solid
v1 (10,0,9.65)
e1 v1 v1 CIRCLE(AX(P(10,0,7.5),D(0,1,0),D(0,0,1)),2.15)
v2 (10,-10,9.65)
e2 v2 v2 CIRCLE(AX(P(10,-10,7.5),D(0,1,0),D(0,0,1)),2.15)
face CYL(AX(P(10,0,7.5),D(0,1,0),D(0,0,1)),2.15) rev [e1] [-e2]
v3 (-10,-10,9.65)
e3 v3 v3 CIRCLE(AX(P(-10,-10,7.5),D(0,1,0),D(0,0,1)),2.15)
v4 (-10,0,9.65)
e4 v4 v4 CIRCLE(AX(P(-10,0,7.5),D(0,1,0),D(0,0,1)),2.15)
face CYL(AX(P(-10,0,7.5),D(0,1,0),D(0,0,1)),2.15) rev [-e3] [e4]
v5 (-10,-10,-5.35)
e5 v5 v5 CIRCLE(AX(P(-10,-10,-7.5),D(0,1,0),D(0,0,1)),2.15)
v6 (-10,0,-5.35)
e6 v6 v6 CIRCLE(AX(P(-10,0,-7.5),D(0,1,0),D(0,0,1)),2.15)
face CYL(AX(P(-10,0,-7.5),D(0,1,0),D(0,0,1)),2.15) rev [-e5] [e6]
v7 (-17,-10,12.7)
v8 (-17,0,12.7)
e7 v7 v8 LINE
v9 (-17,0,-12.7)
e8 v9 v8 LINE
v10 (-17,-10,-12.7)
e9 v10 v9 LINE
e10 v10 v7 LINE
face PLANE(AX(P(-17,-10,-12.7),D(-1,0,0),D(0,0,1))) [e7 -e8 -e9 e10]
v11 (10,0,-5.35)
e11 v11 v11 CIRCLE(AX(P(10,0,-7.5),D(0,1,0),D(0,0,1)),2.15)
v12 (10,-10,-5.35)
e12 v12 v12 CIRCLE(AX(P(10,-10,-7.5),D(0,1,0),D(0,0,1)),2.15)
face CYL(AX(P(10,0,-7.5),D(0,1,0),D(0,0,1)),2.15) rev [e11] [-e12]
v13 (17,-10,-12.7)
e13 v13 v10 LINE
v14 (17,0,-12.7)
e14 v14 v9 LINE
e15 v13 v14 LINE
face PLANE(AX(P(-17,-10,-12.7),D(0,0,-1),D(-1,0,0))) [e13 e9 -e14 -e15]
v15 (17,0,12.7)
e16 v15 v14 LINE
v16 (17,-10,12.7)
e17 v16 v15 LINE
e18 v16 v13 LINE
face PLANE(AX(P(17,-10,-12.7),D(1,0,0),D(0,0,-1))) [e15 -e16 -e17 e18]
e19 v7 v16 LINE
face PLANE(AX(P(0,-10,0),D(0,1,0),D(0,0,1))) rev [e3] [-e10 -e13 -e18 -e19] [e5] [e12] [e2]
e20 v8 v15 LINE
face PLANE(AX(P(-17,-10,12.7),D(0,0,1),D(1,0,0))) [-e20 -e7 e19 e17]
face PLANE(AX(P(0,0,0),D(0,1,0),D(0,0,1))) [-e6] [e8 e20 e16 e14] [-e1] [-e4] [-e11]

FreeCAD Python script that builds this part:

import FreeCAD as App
import Part
import Sketcher

doc = App.newDocument("Part")
params = doc.addObject("Spreadsheet::Sheet", "Params")
for row, (alias, value) in enumerate([
    ("sketch1_width", "34 mm"),
    ("sketch1_height", "25.4 mm"),
    ("pad1_length", "10 mm"),
    ("sketch2_diameter", "4.3 mm"),
    ("hole_diameter", "4.3 mm"),
], start=1):
    params.set(f"A{row}", alias)
    params.set(f"B{row}", "=" + value)
    params.setAlias(f"B{row}", alias)

body = doc.addObject("PartDesign::Body", "Body")

# Sketch on XZ plane
sketch1 = body.newObject("Sketcher::SketchObject", "Sketch")
sketch1.AttachmentSupport = (doc.getObject("XZ_Plane"), [""])
sketch1.MapMode = "FlatFace"
sketch1.addGeometry([
    Part.LineSegment(App.Vector(-17, -12.7, 0), App.Vector(-17, 12.7, 0)),
    Part.LineSegment(App.Vector(-17, 12.7, 0), App.Vector(17, 12.7, 0)),
    Part.LineSegment(App.Vector(17, 12.7, 0), App.Vector(17, -12.7, 0)),
    Part.LineSegment(App.Vector(17, -12.7, 0), App.Vector(-17, -12.7, 0)),
], False)
sketch1.addConstraint([
    Sketcher.Constraint("Coincident", 0, 2, 1, 1),
    Sketcher.Constraint("Coincident", 1, 2, 2, 1),
    Sketcher.Constraint("Coincident", 2, 2, 3, 1),
    Sketcher.Constraint("Coincident", 3, 2, 0, 1),
    Sketcher.Constraint("Vertical", 0),
    Sketcher.Constraint("Horizontal", 1),
    Sketcher.Constraint("Vertical", 2),
    Sketcher.Constraint("Horizontal", 3),
    Sketcher.Constraint("Symmetric", 0, 2, 2, 2, -1, 1),
    Sketcher.Constraint("DistanceX", 1, 1, 1, 2, 34.0),
    Sketcher.Constraint("DistanceY", 0, 1, 0, 2, 25.4),
])
sketch1.setExpression("Constraints[9]", "Params.sketch1_width")
sketch1.setExpression("Constraints[10]", "Params.sketch1_height")
pad1 = body.newObject("PartDesign::Pad", "Pad")
pad1.Profile = sketch1
pad1.setExpression("Length", "Params.pad1_length")

# Sketch on XZ plane
sketch2 = body.newObject("Sketcher::SketchObject", "Sketch001")
sketch2.AttachmentSupport = (doc.getObject("XZ_Plane"), [""])
sketch2.MapMode = "FlatFace"
sketch2.addGeometry([
    Part.Circle(App.Vector(-10, -7.5, 0), App.Vector(0, 0, 1), 2.15),
    Part.Circle(App.Vector(-10, 7.5, 0), App.Vector(0, 0, 1), 2.15),
    Part.Circle(App.Vector(10, 7.5, 0), App.Vector(0, 0, 1), 2.15),
    Part.Circle(App.Vector(10, -7.5, 0), App.Vector(0, 0, 1), 2.15),
], False)
sketch2.addConstraint([
    Sketcher.Constraint("Equal", 0, 1),
    Sketcher.Constraint("Equal", 1, 2),
    Sketcher.Constraint("Equal", 2, 3),
    Sketcher.Constraint("Symmetric", 0, 3, 2, 3, -1, 1),
    Sketcher.Constraint("Symmetric", 1, 3, 3, 3, -1, 1),
    Sketcher.Constraint("Symmetric", 1, 3, 2, 3, -2),
    Sketcher.Constraint("Diameter", 0, 4.3),
    Sketcher.Constraint("DistanceX", 0, 3, -1, 1, 10.0),
    Sketcher.Constraint("DistanceY", 0, 3, 1, 3, 15.0),
])
sketch2.setExpression("Constraints[6]", "Params.sketch2_diameter")
doc.recompute()
hole = body.newObject("PartDesign::Hole", "Hole")
hole.Profile = sketch2
hole.ThreadType = "None"
hole.setExpression("Diameter", "Params.hole_diameter")
hole.DepthType = "ThroughAll"
hole.Reversed = True

doc.recompute()
